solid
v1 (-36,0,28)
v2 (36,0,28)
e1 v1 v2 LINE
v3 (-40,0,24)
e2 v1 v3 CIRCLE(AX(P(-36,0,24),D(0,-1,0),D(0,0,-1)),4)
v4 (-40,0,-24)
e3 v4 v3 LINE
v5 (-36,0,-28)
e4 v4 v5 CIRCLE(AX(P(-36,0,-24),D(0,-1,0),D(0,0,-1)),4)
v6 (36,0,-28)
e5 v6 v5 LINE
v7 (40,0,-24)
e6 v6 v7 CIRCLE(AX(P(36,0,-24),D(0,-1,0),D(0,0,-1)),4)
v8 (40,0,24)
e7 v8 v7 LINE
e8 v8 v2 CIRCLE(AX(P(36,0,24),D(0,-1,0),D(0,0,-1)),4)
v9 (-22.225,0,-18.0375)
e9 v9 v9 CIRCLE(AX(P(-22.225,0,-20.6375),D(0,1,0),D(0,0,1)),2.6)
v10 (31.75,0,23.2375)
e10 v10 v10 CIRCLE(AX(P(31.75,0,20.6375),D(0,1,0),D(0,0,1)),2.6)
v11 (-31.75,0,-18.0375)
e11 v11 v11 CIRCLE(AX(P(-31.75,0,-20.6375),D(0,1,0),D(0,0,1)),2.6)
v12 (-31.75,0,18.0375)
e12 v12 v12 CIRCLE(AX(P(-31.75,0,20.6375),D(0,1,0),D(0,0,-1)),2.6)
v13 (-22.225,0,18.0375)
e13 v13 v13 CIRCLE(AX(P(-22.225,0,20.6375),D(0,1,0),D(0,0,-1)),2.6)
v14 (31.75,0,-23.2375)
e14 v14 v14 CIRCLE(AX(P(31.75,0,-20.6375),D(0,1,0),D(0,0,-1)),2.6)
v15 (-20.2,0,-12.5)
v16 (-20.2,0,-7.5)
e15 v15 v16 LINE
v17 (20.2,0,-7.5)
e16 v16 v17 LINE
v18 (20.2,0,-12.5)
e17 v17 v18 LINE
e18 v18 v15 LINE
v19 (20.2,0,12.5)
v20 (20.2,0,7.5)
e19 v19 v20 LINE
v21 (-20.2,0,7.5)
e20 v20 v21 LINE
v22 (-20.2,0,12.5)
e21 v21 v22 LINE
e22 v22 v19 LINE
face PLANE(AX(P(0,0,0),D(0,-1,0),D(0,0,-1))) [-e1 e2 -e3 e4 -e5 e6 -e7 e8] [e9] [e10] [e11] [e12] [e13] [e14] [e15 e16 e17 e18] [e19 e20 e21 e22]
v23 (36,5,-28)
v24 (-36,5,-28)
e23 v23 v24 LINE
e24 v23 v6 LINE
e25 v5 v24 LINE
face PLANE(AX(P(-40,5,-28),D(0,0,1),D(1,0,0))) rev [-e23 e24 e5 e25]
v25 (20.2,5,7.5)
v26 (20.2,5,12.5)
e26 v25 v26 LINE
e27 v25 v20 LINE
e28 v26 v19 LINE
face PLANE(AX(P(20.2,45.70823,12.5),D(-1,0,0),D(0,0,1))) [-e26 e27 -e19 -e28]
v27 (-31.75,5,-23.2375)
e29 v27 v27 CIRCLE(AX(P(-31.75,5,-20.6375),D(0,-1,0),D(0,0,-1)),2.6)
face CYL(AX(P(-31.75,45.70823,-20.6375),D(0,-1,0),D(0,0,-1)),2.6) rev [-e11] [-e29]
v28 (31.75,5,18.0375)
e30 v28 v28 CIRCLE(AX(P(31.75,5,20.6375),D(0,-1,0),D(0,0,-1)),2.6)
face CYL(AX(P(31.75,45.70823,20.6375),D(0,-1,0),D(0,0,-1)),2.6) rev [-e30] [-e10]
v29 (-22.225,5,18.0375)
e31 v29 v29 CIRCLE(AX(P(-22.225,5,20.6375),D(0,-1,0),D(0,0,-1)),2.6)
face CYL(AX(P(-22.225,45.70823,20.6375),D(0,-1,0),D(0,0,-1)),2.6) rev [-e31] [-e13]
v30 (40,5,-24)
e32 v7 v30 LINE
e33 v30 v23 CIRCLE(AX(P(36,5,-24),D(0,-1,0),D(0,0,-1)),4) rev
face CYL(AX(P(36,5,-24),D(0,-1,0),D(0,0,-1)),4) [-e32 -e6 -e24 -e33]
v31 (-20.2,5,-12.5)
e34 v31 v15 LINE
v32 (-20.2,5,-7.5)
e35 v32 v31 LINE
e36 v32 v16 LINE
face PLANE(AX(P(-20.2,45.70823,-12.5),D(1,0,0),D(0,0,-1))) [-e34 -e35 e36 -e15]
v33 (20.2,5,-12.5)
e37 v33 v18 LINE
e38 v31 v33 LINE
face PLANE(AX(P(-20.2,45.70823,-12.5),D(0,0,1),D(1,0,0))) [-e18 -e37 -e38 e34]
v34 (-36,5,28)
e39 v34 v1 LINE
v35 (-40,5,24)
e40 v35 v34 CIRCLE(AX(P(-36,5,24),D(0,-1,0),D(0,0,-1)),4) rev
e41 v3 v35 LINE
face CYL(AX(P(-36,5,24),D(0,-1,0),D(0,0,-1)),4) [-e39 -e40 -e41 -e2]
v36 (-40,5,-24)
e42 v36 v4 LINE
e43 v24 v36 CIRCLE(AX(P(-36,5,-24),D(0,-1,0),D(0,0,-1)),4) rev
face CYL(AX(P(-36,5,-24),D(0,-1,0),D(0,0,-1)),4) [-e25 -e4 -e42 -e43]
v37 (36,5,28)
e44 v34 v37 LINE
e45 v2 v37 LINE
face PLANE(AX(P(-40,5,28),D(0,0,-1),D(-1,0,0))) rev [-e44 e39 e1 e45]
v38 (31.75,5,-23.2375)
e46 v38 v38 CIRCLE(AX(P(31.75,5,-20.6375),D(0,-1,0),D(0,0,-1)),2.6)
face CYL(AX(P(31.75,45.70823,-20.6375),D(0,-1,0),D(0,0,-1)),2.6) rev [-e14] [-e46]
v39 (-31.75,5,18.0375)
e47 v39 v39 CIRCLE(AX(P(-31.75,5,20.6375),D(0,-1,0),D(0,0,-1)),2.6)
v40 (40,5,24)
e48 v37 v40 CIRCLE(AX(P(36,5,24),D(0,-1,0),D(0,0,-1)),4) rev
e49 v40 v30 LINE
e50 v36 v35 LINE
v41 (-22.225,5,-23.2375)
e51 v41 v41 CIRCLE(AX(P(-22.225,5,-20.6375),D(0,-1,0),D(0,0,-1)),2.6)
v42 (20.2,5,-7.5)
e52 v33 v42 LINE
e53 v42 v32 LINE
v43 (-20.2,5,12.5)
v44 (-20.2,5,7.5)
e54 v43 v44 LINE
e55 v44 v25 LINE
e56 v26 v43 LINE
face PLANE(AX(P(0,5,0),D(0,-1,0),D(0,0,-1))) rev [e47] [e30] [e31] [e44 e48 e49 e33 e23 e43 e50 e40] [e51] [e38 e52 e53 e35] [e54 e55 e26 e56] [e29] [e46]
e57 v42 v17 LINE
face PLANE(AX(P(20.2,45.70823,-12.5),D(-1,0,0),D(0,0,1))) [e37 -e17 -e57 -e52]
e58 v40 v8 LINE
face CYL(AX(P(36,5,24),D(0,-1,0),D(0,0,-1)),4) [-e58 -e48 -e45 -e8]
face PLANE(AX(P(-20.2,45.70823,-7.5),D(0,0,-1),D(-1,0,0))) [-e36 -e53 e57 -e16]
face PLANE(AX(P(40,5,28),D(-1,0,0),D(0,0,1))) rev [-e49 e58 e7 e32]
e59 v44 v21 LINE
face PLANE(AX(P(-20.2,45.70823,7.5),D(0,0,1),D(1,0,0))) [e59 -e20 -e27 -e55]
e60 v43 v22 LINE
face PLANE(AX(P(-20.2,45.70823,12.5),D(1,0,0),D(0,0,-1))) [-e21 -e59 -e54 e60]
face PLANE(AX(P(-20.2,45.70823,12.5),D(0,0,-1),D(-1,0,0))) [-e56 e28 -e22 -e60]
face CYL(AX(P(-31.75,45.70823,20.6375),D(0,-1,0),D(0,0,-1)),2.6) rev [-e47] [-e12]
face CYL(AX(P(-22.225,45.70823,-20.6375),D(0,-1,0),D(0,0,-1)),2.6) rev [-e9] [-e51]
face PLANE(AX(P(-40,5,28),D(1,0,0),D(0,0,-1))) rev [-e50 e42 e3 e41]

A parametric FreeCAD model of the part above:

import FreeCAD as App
import Part
import Sketcher
Q = App.Units.Quantity


def edges_at(feature, points):
    """Names of the edges that pass closest to the given points."""
    edges = feature.Shape.Edges
    near = lambda p: min(range(len(edges)), key=lambda i: edges[i].distToShape(Part.Vertex(*p))[0])
    return sorted({f"Edge{near(p) + 1}" for p in points})

doc = App.newDocument("Part")
body = doc.addObject("PartDesign::Body", "Body")

# Sketch on XZ plane
sketch1 = body.newObject("Sketcher::SketchObject", "Sketch")
sketch1.AttachmentSupport = (doc.getObject("XZ_Plane"), [""])
sketch1.MapMode = "FlatFace"
sketch1.addGeometry(Part.LineSegment(App.Vector(-40, -28, 0), App.Vector(-40, 28, 0)), False)
sketch1.addGeometry(Part.LineSegment(App.Vector(-40, 28, 0), App.Vector(40, 28, 0)), False)
sketch1.addGeometry(Part.LineSegment(App.Vector(40, 28, 0), App.Vector(40, -28, 0)), False)
sketch1.addGeometry(Part.LineSegment(App.Vector(40, -28, 0), App.Vector(-40, -28, 0)), False)
sketch1.addConstraint(Sketcher.Constraint("Coincident", 0, 2, 1, 1))
sketch1.addConstraint(Sketcher.Constraint("Coincident", 1, 2, 2, 1))
sketch1.addConstraint(Sketcher.Constraint("Coincident", 2, 2, 3, 1))
sketch1.addConstraint(Sketcher.Constraint("Coincident", 3, 2, 0, 1))
sketch1.addConstraint(Sketcher.Constraint("Vertical", 0))
sketch1.addConstraint(Sketcher.Constraint("Horizontal", 1))
sketch1.addConstraint(Sketcher.Constraint("Vertical", 2))
sketch1.addConstraint(Sketcher.Constraint("Horizontal", 3))
sketch1.addConstraint(Sketcher.Constraint("Symmetric", 0, 2, 2, 2, -1, 1))
sketch1.addConstraint(Sketcher.Constraint("DistanceX", 1, 1, 1, 2, Q("80 mm")))
sketch1.addConstraint(Sketcher.Constraint("DistanceY", 0, 1, 0, 2, Q("56 mm")))
pad1 = body.newObject("PartDesign::Pad", "Pad")
pad1.Profile = sketch1
pad1.Length = 5
pad1.Reversed = True

# Sketch on XZ plane
sketch2 = body.newObject("Sketcher::SketchObject", "Sketch001")
sketch2.AttachmentSupport = (doc.getObject("XZ_Plane"), [""])
sketch2.MapMode = "FlatFace"
sketch2.addGeometry(Part.Circle(App.Vector(-31.8, -20.6, 0), App.Vector(0, 0, 1), 2.6), False)
sketch2.addGeometry(Part.Circle(App.Vector(31.8, -20.6, 0), App.Vector(0, 0, 1), 2.6), False)
sketch2.addGeometry(Part.Circle(App.Vector(31.8, 20.6, 0), App.Vector(0, 0, 1), 2.6), False)
sketch2.addGeometry(Part.Circle(App.Vector(-31.8, 20.6, 0), App.Vector(0, 0, 1), 2.6), False)
sketch2.addGeometry(Part.Circle(App.Vector(-22.2, -20.6, 0), App.Vector(0, 0, 1), 2.6), False)
sketch2.addGeometry(Part.Circle(App.Vector(-22.2, 20.6, 0), App.Vector(0, 0, 1), 2.6), False)
sketch2.addGeometry(Part.LineSegment(App.Vector(-20.2, 7.5, 0), App.Vector(-20.2, 12.5, 0)), False)
sketch2.addGeometry(Part.LineSegment(App.Vector(-20.2, 12.5, 0), App.Vector(20.2, 12.5, 0)), False)
sketch2.addGeometry(Part.LineSegment(App.Vector(20.2, 12.5, 0), App.Vector(20.2, 7.5, 0)), False)
sketch2.addGeometry(Part.LineSegment(App.Vector(20.2, 7.5, 0), App.Vector(-20.2, 7.5, 0)), False)
sketch2.addGeometry(Part.LineSegment(App.Vector(-20.2, -12.5, 0), App.Vector(-20.2, -7.5, 0)), False)
sketch2.addGeometry(Part.LineSegment(App.Vector(-20.2, -7.5, 0), App.Vector(20.2, -7.5, 0)), False)
sketch2.addGeometry(Part.LineSegment(App.Vector(20.2, -7.5, 0), App.Vector(20.2, -12.5, 0)), False)
sketch2.addGeometry(Part.LineSegment(App.Vector(20.2, -12.5, 0), App.Vector(-20.2, -12.5, 0)), False)
sketch2.addConstraint(Sketcher.Constraint("Coincident", 6, 2, 7, 1))
sketch2.addConstraint(Sketcher.Constraint("Coincident", 7, 2, 8, 1))
sketch2.addConstraint(Sketcher.Constraint("Coincident", 8, 2, 9, 1))
sketch2.addConstraint(Sketcher.Constraint("Coincident", 9, 2, 6, 1))
sketch2.addConstraint(Sketcher.Constraint("Coincident", 10, 2, 11, 1))
sketch2.addConstraint(Sketcher.Constraint("Coincident", 11, 2, 12, 1))
sketch2.addConstraint(Sketcher.Constraint("Coincident", 12, 2, 13, 1))
sketch2.addConstraint(Sketcher.Constraint("Coincident", 13, 2, 10, 1))
sketch2.addConstraint(Sketcher.Constraint("Vertical", 6))
sketch2.addConstraint(Sketcher.Constraint("Horizontal", 7))
sketch2.addConstraint(Sketcher.Constraint("Vertical", 8))
sketch2.addConstraint(Sketcher.Constraint("Horizontal", 9))
sketch2.addConstraint(Sketcher.Constraint("Vertical", 10))
sketch2.addConstraint(Sketcher.Constraint("Horizontal", 11))
sketch2.addConstraint(Sketcher.Constraint("Vertical", 12))
sketch2.addConstraint(Sketcher.Constraint("Horizontal", 13))
sketch2.addConstraint(Sketcher.Constraint("Equal", 0, 1))
sketch2.addConstraint(Sketcher.Constraint("Equal", 1, 2))
sketch2.addConstraint(Sketcher.Constraint("Equal", 2, 3))
sketch2.addConstraint(Sketcher.Constraint("Equal", 3, 4))
sketch2.addConstraint(Sketcher.Constraint("Equal", 4, 5))
sketch2.addConstraint(Sketcher.Constraint("Symmetric", 0, 3, 2, 3, -1, 1))
sketch2.addConstraint(Sketcher.Constraint("Symmetric", 1, 3, 3, 3, -1, 1))
sketch2.addConstraint(Sketcher.Constraint("Symmetric", 8, 2, 10, 2, -1, 1))
sketch2.addConstraint(Sketcher.Constraint("Symmetric", 6, 2, 12, 2, -1, 1))
sketch2.addConstraint(Sketcher.Constraint("Symmetric", 0, 3, 1, 3, -2))
sketch2.addConstraint(Sketcher.Constraint("Symmetric", 4, 3, 5, 3, -1))
sketch2.addConstraint(Sketcher.Constraint("Horizontal", 1, 3, 4, 3))
sketch2.addConstraint(Sketcher.Constraint("Vertical", 9, 2, 10, 2))
sketch2.addConstraint(Sketcher.Constraint("Diameter", 0, Q("5.2 mm")))
sketch2.addConstraint(Sketcher.Constraint("DistanceY", 6, 1, 6, 2, Q("5 mm")))
sketch2.addConstraint(Sketcher.Constraint("DistanceX", 7, 1, 7, 2, Q("40.4 mm")))
sketch2.addConstraint(Sketcher.Constraint("DistanceY", 10, 2, 9, 2, Q("15 mm")))
sketch2.addConstraint(Sketcher.Constraint("DistanceX", 0, 3, 1, 3, Q("63.5 mm")))
sketch2.addConstraint(Sketcher.Constraint("DistanceX", 4, 3, -1, 1, Q("22.225 mm")))
sketch2.addConstraint(Sketcher.Constraint("DistanceY", 1, 3, 2, 3, Q("41.275 mm")))
pocket1 = body.newObject("PartDesign::Pocket", "Pocket")
pocket1.Profile = sketch2
pocket1.Length = 5
doc.recompute()

fillet = body.newObject("PartDesign::Fillet", "Fillet")
fillet.Base = (pocket1, edges_at(pocket1, [
    (40, 2.5, 28),
    (-40, 2.5, 28),
    (-40, 2.5, -28),
    (40, 2.5, -28),
]))
fillet.Radius = 4

doc.recompute()
